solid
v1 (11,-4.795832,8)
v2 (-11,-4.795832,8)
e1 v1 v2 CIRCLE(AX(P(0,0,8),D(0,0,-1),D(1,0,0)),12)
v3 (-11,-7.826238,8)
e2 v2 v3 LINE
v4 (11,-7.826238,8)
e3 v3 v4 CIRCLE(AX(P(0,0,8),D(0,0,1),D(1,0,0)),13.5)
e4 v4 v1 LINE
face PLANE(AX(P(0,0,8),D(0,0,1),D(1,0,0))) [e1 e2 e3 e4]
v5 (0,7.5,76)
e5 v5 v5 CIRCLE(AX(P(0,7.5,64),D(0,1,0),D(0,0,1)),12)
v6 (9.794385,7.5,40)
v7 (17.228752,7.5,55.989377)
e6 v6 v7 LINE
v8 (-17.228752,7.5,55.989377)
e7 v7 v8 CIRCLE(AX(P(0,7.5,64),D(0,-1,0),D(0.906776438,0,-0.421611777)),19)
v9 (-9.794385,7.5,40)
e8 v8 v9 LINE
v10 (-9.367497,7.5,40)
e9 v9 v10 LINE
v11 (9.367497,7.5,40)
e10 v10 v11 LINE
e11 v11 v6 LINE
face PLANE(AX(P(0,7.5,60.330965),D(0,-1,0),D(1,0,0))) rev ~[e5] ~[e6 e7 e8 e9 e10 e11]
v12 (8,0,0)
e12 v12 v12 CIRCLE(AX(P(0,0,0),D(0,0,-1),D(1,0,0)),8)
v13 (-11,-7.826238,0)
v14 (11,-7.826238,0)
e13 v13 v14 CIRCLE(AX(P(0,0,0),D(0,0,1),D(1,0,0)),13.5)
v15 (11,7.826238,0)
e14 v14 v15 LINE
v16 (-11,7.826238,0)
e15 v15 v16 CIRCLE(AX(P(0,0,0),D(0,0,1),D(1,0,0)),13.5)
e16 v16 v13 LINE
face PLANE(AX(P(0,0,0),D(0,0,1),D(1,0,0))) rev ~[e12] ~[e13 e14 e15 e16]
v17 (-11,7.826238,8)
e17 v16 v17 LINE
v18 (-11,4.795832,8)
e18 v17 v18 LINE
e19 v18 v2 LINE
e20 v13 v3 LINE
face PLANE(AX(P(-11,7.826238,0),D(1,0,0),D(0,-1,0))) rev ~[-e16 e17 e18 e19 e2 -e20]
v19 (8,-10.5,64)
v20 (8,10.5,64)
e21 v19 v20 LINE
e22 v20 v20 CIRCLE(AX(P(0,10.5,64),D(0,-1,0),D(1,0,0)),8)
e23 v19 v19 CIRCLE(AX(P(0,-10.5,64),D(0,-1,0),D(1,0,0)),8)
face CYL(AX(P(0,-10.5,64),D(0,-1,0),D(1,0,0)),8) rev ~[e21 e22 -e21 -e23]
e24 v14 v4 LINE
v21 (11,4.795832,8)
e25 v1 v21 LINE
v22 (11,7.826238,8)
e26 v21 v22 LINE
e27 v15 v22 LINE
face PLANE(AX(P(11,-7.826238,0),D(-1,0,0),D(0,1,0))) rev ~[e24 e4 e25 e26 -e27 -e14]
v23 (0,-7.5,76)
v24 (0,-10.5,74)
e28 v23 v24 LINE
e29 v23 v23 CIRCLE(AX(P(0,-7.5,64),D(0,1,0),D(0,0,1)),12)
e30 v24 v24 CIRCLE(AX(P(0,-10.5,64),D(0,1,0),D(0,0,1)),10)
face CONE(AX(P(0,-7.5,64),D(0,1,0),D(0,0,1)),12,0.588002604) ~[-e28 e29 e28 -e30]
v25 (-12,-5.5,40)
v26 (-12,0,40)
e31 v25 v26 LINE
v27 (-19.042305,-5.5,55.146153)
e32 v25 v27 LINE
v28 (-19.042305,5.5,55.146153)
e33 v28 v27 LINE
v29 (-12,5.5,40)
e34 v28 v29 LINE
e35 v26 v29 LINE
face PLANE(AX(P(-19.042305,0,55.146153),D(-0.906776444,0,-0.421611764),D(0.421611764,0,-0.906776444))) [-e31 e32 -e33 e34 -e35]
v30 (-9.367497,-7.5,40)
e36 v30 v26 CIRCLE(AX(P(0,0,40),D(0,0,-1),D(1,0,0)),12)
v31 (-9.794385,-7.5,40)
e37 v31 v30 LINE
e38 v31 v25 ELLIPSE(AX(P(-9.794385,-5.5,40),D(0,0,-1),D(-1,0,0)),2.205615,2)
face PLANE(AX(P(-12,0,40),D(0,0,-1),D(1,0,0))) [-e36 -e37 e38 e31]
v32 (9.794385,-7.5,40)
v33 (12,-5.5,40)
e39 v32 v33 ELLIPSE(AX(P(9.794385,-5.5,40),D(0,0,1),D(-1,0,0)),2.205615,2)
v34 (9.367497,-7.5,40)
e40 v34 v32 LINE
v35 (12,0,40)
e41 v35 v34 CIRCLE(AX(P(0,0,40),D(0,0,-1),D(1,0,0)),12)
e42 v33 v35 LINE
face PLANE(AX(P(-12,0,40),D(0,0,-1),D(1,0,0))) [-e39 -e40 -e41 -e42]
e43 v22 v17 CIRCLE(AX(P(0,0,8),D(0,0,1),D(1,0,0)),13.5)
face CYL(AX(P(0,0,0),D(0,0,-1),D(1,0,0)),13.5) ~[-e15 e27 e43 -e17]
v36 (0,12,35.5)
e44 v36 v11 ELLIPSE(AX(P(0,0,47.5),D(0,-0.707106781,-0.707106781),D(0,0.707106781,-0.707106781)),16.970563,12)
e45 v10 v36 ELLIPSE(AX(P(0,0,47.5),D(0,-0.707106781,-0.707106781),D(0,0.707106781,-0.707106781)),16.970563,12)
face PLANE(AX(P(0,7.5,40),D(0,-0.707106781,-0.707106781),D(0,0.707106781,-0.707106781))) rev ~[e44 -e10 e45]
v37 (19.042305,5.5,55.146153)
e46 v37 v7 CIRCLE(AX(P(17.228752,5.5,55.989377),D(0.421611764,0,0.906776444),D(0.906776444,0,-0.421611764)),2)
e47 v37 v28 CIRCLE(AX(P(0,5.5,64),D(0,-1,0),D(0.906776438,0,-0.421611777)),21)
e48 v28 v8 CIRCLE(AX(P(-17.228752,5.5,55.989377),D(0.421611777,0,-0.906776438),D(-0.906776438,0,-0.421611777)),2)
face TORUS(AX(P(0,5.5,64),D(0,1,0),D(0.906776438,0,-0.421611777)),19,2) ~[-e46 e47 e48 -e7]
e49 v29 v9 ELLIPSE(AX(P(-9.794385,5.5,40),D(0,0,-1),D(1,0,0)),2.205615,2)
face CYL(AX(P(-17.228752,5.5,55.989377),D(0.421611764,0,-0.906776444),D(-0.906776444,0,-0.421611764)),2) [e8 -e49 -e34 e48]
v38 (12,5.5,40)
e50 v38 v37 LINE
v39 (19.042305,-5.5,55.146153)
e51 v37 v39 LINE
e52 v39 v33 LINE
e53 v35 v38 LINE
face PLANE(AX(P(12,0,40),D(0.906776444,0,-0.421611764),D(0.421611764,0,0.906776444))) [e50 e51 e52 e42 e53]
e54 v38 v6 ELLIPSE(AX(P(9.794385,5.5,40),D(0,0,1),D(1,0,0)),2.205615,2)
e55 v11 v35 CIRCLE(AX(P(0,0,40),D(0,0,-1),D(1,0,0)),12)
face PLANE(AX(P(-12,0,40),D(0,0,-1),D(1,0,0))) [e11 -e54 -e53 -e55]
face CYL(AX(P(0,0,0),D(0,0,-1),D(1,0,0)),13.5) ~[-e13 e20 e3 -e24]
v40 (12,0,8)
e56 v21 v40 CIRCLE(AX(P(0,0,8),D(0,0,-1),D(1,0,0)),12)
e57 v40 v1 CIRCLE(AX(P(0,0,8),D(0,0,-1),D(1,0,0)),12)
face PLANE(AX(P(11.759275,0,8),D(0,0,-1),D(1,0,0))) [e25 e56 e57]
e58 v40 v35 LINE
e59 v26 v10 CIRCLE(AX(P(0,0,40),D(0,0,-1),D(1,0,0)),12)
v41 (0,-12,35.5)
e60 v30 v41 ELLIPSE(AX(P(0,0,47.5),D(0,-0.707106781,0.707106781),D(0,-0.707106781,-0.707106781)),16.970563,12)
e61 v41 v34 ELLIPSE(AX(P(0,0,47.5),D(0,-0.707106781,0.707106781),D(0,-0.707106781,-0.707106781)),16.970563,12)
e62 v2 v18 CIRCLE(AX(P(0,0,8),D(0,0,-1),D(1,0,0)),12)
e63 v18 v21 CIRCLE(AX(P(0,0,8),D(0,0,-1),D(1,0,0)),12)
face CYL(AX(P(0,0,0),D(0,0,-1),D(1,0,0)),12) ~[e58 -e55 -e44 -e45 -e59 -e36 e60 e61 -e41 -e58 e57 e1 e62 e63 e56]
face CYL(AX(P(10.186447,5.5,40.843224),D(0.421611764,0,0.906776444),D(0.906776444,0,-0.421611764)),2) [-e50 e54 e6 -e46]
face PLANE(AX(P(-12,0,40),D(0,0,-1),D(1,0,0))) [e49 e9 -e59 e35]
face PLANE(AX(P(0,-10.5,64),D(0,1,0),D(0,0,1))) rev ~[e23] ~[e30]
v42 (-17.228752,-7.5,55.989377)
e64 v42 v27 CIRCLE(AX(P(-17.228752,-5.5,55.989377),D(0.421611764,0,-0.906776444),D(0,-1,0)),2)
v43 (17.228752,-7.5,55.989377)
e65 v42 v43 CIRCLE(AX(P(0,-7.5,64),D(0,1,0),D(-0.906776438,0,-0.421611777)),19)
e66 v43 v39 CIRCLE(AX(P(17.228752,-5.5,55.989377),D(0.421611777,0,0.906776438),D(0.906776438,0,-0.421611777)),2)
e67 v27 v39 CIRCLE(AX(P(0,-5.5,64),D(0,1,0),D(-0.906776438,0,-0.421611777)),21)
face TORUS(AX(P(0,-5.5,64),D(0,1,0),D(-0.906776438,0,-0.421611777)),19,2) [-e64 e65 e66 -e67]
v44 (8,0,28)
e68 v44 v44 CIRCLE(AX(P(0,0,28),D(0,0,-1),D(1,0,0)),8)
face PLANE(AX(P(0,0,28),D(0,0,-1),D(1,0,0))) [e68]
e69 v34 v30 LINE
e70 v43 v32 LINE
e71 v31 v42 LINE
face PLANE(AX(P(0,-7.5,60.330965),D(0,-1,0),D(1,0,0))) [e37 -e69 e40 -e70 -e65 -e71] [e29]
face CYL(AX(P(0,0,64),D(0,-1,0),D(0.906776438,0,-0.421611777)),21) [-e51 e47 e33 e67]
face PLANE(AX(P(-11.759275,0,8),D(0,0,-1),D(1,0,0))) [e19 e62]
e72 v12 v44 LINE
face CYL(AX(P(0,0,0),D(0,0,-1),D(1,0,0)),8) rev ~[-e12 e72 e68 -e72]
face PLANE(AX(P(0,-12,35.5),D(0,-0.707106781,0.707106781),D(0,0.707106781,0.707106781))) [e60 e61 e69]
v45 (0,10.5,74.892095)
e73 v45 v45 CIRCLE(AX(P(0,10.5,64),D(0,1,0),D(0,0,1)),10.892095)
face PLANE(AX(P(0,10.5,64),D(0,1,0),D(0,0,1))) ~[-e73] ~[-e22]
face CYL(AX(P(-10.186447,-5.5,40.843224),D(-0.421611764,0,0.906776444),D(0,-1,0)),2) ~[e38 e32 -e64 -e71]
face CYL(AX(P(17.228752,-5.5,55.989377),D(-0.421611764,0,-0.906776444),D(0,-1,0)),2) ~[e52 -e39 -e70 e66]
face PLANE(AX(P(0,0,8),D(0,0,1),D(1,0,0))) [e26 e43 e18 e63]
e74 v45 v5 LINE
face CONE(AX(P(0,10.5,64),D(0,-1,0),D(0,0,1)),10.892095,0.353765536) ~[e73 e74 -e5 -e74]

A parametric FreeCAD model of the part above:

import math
import FreeCAD as App
import Part
import Sketcher


def edges_at(feature, points):
    """Names of the edges that pass closest to the given points."""
    edges = feature.Shape.Edges
    near = lambda p: min(range(len(edges)), key=lambda i: edges[i].distToShape(Part.Vertex(*p))[0])
    return sorted({f"Edge{near(p) + 1}" for p in points})


def add_polygon(sketch, points):
    """Adds a closed chain of lines whose ends are joined by coincident constraints."""
    first, n = sketch.GeometryCount, len(points)
    for a, b in zip(points, points[1:] + points[:1]):
        sketch.addGeometry(Part.LineSegment(App.Vector(*a, 0), App.Vector(*b, 0)), False)
    for i in range(n):
        sketch.addConstraint(Sketcher.Constraint("Coincident", first + i, 2, first + (i + 1) % n, 1))

doc = App.newDocument("Part")
body = doc.addObject("PartDesign::Body", "Body")

# Sketch on XY plane
sketch1 = doc.addObject("Sketcher::SketchObject", "Sketch")
body.addObject(sketch1)
sketch1.AttachmentSupport = (doc.XY_Plane, [""])
sketch1.MapMode = "FlatFace"
sketch1.addGeometry(Part.Circle(App.Vector(0, 0, 0), App.Vector(0, 0, 1), 12), False)
sketch1.addConstraint([
    Sketcher.Constraint("Coincident", 0, 3, -1, 1),
    Sketcher.Constraint("Diameter", 0, 24.0),
])
pad1 = doc.addObject("PartDesign::Pad", "Pad")
body.addObject(pad1)
pad1.Profile = sketch1
pad1.Length = 64

# Sketch on XY plane
sketch2 = doc.addObject("Sketcher::SketchObject", "Sketch001")
body.addObject(sketch2)
sketch2.AttachmentSupport = (doc.XY_Plane, [""])
sketch2.MapMode = "FlatFace"
sketch2.addGeometry(Part.Circle(App.Vector(0, 0, 0), App.Vector(0, 0, 1), 14), False)
sketch2.addConstraint([
    Sketcher.Constraint("Coincident", 0, 3, -1, 1),
    Sketcher.Constraint("Diameter", 0, 27.0),
])
pad2 = doc.addObject("PartDesign::Pad", "Pad001")
body.addObject(pad2)
pad2.Profile = sketch2
pad2.Length = 8

# Sketch on XZ plane
sketch3 = doc.addObject("Sketcher::SketchObject", "Sketch002")
body.addObject(sketch3)
sketch3.AttachmentSupport = (doc.XZ_Plane, [""])
sketch3.MapMode = "FlatFace"
sketch3.addGeometry([
    Part.LineSegment(App.Vector(12, 40, 0), App.Vector(19, 55, 0)),
    Part.ArcOfCircle(Part.Circle(App.Vector(0, 64, 0), App.Vector(0, 0, 1), 21), math.radians(-25), math.radians(205)),
    Part.LineSegment(App.Vector(-19, 55, 0), App.Vector(-12, 40, 0)),
    Part.LineSegment(App.Vector(-12, 40, 0), App.Vector(12, 40, 0)),
], False)
sketch3.addConstraint([
    Sketcher.Constraint("Tangent", 0, 2, 1, 1),
    Sketcher.Constraint("Tangent", 1, 2, 2, 1),
    Sketcher.Constraint("Coincident", 2, 2, 3, 1),
    Sketcher.Constraint("Coincident", 3, 2, 0, 1),
    Sketcher.Constraint("Horizontal", 3),
    Sketcher.Constraint("Symmetric", 0, 2, 1, 2, -2),
    Sketcher.Constraint("Radius", 1, 21.0),
    Sketcher.Constraint("DistanceX", 3, 1, 3, 2, 24.0),
    Sketcher.Constraint("DistanceY", -1, 1, 1, 3, 64.0),
    Sketcher.Constraint("DistanceY", -1, 1, 2, 2, 40.0),
])
pad3 = doc.addObject("PartDesign::Pad", "Pad002")
body.addObject(pad3)
pad3.Profile = sketch3
pad3.Length = 15
pad3.Midplane = True

# Sketch on YZ plane
sketch4 = doc.addObject("Sketcher::SketchObject", "Sketch003")
body.addObject(sketch4)
sketch4.AttachmentSupport = (doc.YZ_Plane, [""])
sketch4.MapMode = "FlatFace"
add_polygon(sketch4, [(-7.5, 40), (-7.5, 64), (-12, 64), (-12, 35.5)])  # lines 0-3
add_polygon(sketch4, [(12, 64), (7.5, 64), (7.5, 40), (12, 35.5)])  # lines 4-7
sketch4.addConstraint([
    Sketcher.Constraint("Vertical", 0),
    Sketcher.Constraint("Horizontal", 1),
    Sketcher.Constraint("Vertical", 2),
    Sketcher.Constraint("Horizontal", 4),
    Sketcher.Constraint("Vertical", 5),
    Sketcher.Constraint("Vertical", 7),
    Sketcher.Constraint("Symmetric", 0, 2, 4, 2, -2),
    Sketcher.Constraint("Symmetric", 2, 2, 6, 2, -2),
    Sketcher.Constraint("Perpendicular", 3, 6),
    Sketcher.Constraint("Horizontal", 3, 2, 5, 2),
    Sketcher.Constraint("DistanceY", 0, 1, 0, 2, 24.0),
    Sketcher.Constraint("DistanceX", 1, 2, 1, 1, 4.5),
    Sketcher.Constraint("DistanceY", -1, 1, 0, 2, 64.0),
    Sketcher.Constraint("DistanceX", 1, 2, -1, 1, 12.0),
])
pocket1 = doc.addObject("PartDesign::Pocket", "Pocket")
body.addObject(pocket1)
pocket1.Profile = sketch4
pocket1.Length = 25
pocket1.Midplane = True

# Sketch on YZ plane
sketch5 = doc.addObject("Sketcher::SketchObject", "Sketch004")
body.addObject(sketch5)
sketch5.AttachmentSupport = (doc.YZ_Plane, [""])
sketch5.MapMode = "FlatFace"
add_polygon(sketch5, [(-10.5, 74), (-10.5, 64), (10.5, 64), (10.5, 74.9), (7.5, 76), (-7.5, 76)])  # lines 0-5
sketch5.addGeometry(Part.LineSegment(App.Vector(-10.5, 64, 0), App.Vector(10.5, 64, 0)), True)  # axis
sketch5.addConstraint([
    Sketcher.Constraint("Vertical", 0),
    Sketcher.Constraint("Horizontal", 1),
    Sketcher.Constraint("Vertical", 2),
    Sketcher.Constraint("Horizontal", 4),
    Sketcher.Constraint("Horizontal", 6),
    Sketcher.Constraint("Coincident", 6, 1, 0, 2),
    Sketcher.Constraint("Vertical", 2, 2, 6, 2),
    Sketcher.Constraint("DistanceX", 1, 1, 1, 2, 21.0),
    Sketcher.Constraint("DistanceX", 4, 2, 4, 1, 15.0),
    Sketcher.Constraint("DistanceY", 0, 2, 0, 1, 10.0),
    Sketcher.Constraint("DistanceY", -1, 1, 0, 2, 64.0),
    Sketcher.Constraint("DistanceY", -1, 1, 3, 2, 76.0),
    Sketcher.Constraint("DistanceX", 3, 2, 2, 2, 3.0),
    Sketcher.Constraint("DistanceX", 0, 2, -1, 1, 10.5),
    Sketcher.Constraint("Distance", 3, 3.198039),
])
revolution = doc.addObject("PartDesign::Revolution", "Revolution")
body.addObject(revolution)
revolution.Profile = sketch5
revolution.ReferenceAxis = (sketch5, ["Axis0"])
revolution.Angle = 360

# Sketch on XZ plane
sketch6 = doc.addObject("Sketcher::SketchObject", "Sketch005")
body.addObject(sketch6)
sketch6.AttachmentSupport = (doc.XZ_Plane, [""])
sketch6.MapMode = "FlatFace"
sketch6.AttachmentOffset = App.Placement(App.Vector(0, 0, 10.5), App.Rotation())
sketch6.addGeometry(Part.Circle(App.Vector(0, 64, 0), App.Vector(0, 0, 1), 8), False)
sketch6.addConstraint([
    Sketcher.Constraint("PointOnObject", 0, 3, -2),
    Sketcher.Constraint("Diameter", 0, 16.0),
    Sketcher.Constraint("DistanceY", -1, 1, 0, 3, 64.0),
])
pocket2 = doc.addObject("PartDesign::Pocket", "Pocket001")
body.addObject(pocket2)
pocket2.Profile = sketch6
pocket2.Type = "ThroughAll"
doc.recompute()

fillet = doc.addObject("PartDesign::Fillet", "Fillet")
body.addObject(fillet)
fillet.Base = (pocket2, edges_at(pocket2, [(15.521, -7.5, 47.573), (15.521, 7.5, 47.573)]))
fillet.Radius = 2

# Sketch on XY plane
sketch7 = doc.addObject("Sketcher::SketchObject", "Sketch006")
body.addObject(sketch7)
sketch7.AttachmentSupport = (doc.XY_Plane, [""])
sketch7.MapMode = "FlatFace"
sketch7.addGeometry(Part.Circle(App.Vector(0, 0, 0), App.Vector(0, 0, 1), 8), False)
sketch7.addConstraint([
    Sketcher.Constraint("Coincident", 0, 3, -1, 1),
    Sketcher.Constraint("Diameter", 0, 16.0),
])
pocket3 = doc.addObject("PartDesign::Pocket", "Pocket002")
body.addObject(pocket3)
pocket3.Profile = sketch7
pocket3.Length = 28
pocket3.Reversed = True

# Sketch on XY plane
sketch8 = doc.addObject("Sketcher::SketchObject", "Sketch007")
body.addObject(sketch8)
sketch8.AttachmentSupport = (doc.XY_Plane, [""])
sketch8.MapMode = "FlatFace"
sketch8.addGeometry([
    Part.LineSegment(App.Vector(-11, 8, 0), App.Vector(-11, -8, 0)),
    Part.ArcOfCircle(Part.Circle(App.Vector(0, 0, 0), App.Vector(0, 0, 1), 14), math.radians(145), math.radians(215)),
    Part.LineSegment(App.Vector(11, -8, 0), App.Vector(11, 8, 0)),
    Part.ArcOfCircle(Part.Circle(App.Vector(0, 0, 0), App.Vector(0, 0, 1), 14), math.radians(-35), math.radians(35)),
], False)
sketch8.addConstraint([
    Sketcher.Constraint("Coincident", 0, 1, 1, 1),
    Sketcher.Constraint("Coincident", 1, 2, 0, 2),
    Sketcher.Constraint("Coincident", 2, 1, 3, 1),
    Sketcher.Constraint("Coincident", 3, 2, 2, 2),
    Sketcher.Constraint("Vertical", 0),
    Sketcher.Constraint("Vertical", 2),
    Sketcher.Constraint("Coincident", 1, 3, -1, 1),
    Sketcher.Constraint("Coincident", 3, 3, -1, 1),
    Sketcher.Constraint("Equal", 1, 3),
    Sketcher.Constraint("Horizontal", 1, 2, 2, 1),
    Sketcher.Constraint("Radius", 1, 13.5),
    Sketcher.Constraint("DistanceX", 0, 1, -1, 1, 11.0),
])
pocket4 = doc.addObject("PartDesign::Pocket", "Pocket003")
body.addObject(pocket4)
pocket4.Profile = sketch8
pocket4.Length = 8
pocket4.Reversed = True

doc.recompute()
